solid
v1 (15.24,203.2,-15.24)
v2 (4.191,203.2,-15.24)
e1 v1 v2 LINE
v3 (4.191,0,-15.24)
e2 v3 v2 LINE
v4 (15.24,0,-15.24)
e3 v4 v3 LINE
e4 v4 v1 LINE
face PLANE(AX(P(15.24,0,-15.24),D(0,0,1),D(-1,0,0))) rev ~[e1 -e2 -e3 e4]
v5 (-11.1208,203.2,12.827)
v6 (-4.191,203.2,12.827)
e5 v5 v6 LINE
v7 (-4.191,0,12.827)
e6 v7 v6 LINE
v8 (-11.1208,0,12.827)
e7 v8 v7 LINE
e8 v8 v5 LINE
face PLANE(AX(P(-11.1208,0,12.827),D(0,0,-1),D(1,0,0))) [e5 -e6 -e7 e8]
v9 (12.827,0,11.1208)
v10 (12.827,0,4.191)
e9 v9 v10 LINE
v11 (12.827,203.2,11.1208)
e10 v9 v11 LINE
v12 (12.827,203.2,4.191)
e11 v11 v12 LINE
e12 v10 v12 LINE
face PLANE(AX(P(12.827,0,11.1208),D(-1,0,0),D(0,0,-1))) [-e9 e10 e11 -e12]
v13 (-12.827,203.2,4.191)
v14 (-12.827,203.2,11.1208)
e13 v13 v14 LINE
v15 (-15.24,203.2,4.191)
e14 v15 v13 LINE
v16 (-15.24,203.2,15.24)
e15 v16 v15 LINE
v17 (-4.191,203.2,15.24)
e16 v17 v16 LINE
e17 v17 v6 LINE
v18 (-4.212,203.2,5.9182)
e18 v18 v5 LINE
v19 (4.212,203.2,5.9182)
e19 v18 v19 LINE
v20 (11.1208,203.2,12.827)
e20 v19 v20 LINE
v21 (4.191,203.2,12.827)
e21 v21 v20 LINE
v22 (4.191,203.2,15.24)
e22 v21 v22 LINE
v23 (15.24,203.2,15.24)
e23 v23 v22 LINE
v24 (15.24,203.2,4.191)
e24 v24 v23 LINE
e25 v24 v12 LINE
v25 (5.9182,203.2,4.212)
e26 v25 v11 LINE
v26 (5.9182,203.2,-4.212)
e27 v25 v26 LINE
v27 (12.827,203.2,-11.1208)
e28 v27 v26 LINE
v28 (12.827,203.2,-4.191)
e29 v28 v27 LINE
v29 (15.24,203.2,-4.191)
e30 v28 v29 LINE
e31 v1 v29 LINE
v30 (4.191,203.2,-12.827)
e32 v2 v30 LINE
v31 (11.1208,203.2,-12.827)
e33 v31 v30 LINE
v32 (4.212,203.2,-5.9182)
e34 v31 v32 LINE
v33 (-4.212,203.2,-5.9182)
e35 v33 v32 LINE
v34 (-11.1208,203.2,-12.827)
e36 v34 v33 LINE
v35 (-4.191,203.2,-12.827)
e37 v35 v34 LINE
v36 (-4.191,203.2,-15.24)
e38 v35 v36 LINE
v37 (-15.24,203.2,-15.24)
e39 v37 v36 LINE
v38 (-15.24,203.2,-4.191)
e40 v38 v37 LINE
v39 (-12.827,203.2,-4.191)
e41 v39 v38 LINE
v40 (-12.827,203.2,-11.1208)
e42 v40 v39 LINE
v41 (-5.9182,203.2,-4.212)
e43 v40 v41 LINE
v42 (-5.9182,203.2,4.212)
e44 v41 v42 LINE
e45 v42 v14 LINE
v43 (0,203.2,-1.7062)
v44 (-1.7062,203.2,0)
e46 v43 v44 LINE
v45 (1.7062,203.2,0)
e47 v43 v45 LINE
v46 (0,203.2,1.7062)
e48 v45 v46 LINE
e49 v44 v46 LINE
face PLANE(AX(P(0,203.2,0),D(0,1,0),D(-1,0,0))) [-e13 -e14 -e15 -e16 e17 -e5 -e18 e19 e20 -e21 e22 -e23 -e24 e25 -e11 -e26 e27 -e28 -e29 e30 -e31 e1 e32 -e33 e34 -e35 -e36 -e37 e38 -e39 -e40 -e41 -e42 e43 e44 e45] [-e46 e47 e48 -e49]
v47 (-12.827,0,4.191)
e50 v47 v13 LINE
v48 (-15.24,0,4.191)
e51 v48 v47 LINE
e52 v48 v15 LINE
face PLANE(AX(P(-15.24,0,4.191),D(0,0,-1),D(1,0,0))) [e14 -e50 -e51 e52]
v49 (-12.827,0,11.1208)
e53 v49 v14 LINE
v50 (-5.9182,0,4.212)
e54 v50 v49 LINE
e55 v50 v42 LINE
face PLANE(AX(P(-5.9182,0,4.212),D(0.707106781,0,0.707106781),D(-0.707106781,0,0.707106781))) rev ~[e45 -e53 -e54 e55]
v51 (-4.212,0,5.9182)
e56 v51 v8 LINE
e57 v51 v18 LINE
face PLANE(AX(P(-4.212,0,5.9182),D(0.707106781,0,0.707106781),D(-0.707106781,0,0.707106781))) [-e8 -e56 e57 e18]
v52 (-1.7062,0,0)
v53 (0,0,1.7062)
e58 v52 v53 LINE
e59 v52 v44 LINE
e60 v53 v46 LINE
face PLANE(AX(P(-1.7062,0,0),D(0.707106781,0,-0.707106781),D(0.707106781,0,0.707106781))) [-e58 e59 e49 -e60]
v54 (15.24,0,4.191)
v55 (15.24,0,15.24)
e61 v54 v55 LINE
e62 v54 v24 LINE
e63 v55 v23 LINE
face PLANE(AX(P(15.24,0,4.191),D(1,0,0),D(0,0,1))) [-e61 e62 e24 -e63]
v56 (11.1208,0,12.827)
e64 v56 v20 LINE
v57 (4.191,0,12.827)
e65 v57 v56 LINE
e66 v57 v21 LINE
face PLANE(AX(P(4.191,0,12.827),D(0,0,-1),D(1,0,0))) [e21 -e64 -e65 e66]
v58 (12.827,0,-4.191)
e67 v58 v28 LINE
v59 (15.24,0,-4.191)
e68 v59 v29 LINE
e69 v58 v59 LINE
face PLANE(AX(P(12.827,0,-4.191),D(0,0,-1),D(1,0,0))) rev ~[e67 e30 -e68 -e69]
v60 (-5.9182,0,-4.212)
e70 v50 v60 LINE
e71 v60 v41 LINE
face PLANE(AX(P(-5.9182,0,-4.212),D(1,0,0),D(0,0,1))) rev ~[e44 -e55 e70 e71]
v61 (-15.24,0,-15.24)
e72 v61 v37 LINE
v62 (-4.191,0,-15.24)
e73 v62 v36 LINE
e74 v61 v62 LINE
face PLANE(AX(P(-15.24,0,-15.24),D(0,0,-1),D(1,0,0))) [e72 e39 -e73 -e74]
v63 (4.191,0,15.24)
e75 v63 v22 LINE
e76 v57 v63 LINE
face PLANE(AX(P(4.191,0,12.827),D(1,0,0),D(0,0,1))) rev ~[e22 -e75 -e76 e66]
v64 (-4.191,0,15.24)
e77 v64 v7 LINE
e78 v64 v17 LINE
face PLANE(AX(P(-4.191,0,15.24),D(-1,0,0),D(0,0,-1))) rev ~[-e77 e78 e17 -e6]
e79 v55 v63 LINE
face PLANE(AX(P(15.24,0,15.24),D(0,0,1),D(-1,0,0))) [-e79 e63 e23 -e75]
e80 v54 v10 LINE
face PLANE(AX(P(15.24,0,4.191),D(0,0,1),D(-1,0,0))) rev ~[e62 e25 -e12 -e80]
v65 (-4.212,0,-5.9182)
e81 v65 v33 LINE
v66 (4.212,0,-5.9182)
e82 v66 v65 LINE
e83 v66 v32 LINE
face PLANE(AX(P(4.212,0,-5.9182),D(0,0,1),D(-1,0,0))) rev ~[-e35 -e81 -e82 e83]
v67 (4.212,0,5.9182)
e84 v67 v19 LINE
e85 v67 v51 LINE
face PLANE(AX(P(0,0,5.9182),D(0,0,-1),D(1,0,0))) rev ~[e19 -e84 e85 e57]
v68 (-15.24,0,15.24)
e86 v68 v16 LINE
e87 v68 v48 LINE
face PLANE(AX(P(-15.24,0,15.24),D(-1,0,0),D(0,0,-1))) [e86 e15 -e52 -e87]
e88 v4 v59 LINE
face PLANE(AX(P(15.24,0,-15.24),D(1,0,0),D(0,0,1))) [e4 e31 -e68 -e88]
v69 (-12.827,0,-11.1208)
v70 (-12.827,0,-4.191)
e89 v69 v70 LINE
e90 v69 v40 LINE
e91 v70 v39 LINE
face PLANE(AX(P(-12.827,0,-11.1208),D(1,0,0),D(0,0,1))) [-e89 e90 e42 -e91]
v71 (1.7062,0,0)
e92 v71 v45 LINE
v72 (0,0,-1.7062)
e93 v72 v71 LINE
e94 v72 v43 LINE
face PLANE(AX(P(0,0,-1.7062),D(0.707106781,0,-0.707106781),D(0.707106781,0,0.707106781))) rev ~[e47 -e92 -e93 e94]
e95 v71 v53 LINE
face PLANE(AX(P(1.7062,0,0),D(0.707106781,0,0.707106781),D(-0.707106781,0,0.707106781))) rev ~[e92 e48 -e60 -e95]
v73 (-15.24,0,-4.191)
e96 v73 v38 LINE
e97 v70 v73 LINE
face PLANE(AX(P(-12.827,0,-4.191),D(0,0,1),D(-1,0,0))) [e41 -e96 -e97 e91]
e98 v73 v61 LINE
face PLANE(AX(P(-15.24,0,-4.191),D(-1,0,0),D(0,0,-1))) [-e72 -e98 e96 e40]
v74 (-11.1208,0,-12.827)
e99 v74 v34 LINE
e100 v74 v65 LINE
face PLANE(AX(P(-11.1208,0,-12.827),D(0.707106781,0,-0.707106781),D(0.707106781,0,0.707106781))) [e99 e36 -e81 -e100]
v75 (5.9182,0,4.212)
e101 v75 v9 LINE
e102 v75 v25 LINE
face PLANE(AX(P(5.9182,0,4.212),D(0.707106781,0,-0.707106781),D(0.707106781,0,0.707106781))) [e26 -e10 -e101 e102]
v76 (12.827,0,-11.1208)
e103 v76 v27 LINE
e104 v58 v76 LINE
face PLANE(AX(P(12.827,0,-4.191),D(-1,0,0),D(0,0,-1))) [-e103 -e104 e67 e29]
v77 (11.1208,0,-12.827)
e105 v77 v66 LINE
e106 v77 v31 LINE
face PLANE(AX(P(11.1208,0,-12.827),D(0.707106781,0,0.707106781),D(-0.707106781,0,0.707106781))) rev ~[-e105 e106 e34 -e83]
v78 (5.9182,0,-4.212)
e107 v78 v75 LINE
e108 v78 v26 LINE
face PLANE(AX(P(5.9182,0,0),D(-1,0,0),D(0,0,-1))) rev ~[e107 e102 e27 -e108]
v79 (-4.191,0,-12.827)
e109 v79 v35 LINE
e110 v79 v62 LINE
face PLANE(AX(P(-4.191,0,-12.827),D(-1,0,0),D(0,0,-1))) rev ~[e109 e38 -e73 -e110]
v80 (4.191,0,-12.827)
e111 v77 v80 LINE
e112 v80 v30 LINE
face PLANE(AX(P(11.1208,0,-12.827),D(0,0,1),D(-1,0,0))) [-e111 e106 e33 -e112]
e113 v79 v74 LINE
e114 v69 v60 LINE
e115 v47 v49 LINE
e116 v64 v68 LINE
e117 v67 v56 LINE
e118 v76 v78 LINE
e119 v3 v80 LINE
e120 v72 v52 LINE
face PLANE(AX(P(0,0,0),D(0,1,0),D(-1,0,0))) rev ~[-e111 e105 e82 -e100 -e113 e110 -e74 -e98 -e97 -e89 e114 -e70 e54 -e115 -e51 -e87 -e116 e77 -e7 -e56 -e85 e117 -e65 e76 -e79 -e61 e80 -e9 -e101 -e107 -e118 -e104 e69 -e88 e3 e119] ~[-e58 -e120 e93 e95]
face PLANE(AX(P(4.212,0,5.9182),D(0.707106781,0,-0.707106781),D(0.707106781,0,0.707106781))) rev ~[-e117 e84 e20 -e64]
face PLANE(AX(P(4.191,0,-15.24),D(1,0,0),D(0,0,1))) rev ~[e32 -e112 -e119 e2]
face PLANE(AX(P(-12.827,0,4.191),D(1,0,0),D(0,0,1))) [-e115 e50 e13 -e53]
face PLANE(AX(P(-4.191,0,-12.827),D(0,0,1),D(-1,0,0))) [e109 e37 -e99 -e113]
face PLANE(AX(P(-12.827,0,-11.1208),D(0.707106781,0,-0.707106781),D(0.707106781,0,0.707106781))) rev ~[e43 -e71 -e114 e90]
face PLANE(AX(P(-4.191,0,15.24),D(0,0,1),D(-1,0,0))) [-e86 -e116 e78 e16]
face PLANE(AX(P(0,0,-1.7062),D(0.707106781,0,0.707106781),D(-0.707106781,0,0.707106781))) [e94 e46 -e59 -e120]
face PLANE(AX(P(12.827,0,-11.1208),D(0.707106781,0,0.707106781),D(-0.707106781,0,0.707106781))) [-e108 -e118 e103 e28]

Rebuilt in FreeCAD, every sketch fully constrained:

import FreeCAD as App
import Part
import Sketcher
Q = App.Units.Quantity

doc = App.newDocument("Part")
body = doc.addObject("PartDesign::Body", "Body")

sketch1 = body.newObject("Sketcher::SketchObject", "Sketch")
sketch1.AttachmentSupport = (doc.getObject("XZ_Plane"), [""])
sketch1.MapMode = "FlatFace"
sketch1.addGeometry([
    Part.LineSegment(App.Vector(4.2, -5.9, 0), App.Vector(-4.2, -5.9, 0)),
    Part.LineSegment(App.Vector(-4.2, -5.9, 0), App.Vector(-11.1, -12.8, 0)),
    Part.LineSegment(App.Vector(-11.1, -12.8, 0), App.Vector(-4.2, -12.8, 0)),
    Part.LineSegment(App.Vector(-4.2, -12.8, 0), App.Vector(-4.2, -15.2, 0)),
    Part.LineSegment(App.Vector(-4.2, -15.2, 0), App.Vector(-15.2, -15.2, 0)),
    Part.LineSegment(App.Vector(-15.2, -15.2, 0), App.Vector(-15.2, -4.2, 0)),
    Part.LineSegment(App.Vector(-15.2, -4.2, 0), App.Vector(-12.8, -4.2, 0)),
    Part.LineSegment(App.Vector(-12.8, -4.2, 0), App.Vector(-12.8, -11.1, 0)),
    Part.LineSegment(App.Vector(-12.8, -11.1, 0), App.Vector(-5.9, -4.2, 0)),
    Part.LineSegment(App.Vector(-5.9, -4.2, 0), App.Vector(-5.9, 4.2, 0)),
    Part.LineSegment(App.Vector(-5.9, 4.2, 0), App.Vector(-12.8, 11.1, 0)),
    Part.LineSegment(App.Vector(-12.8, 11.1, 0), App.Vector(-12.8, 4.2, 0)),
    Part.LineSegment(App.Vector(-12.8, 4.2, 0), App.Vector(-15.2, 4.2, 0)),
    Part.LineSegment(App.Vector(-15.2, 4.2, 0), App.Vector(-15.2, 15.2, 0)),
    Part.LineSegment(App.Vector(-15.2, 15.2, 0), App.Vector(-4.2, 15.2, 0)),
    Part.LineSegment(App.Vector(-4.2, 15.2, 0), App.Vector(-4.2, 12.8, 0)),
    Part.LineSegment(App.Vector(-4.2, 12.8, 0), App.Vector(-11.1, 12.8, 0)),
    Part.LineSegment(App.Vector(-11.1, 12.8, 0), App.Vector(-4.2, 5.9, 0)),
    Part.LineSegment(App.Vector(-4.2, 5.9, 0), App.Vector(4.2, 5.9, 0)),
    Part.LineSegment(App.Vector(4.2, 5.9, 0), App.Vector(11.1, 12.8, 0)),
    Part.LineSegment(App.Vector(11.1, 12.8, 0), App.Vector(4.2, 12.8, 0)),
    Part.LineSegment(App.Vector(4.2, 12.8, 0), App.Vector(4.2, 15.2, 0)),
    Part.LineSegment(App.Vector(4.2, 15.2, 0), App.Vector(15.2, 15.2, 0)),
    Part.LineSegment(App.Vector(15.2, 15.2, 0), App.Vector(15.2, 4.2, 0)),
    Part.LineSegment(App.Vector(15.2, 4.2, 0), App.Vector(12.8, 4.2, 0)),
    Part.LineSegment(App.Vector(12.8, 4.2, 0), App.Vector(12.8, 11.1, 0)),
    Part.LineSegment(App.Vector(12.8, 11.1, 0), App.Vector(5.9, 4.2, 0)),
    Part.LineSegment(App.Vector(5.9, 4.2, 0), App.Vector(5.9, -4.2, 0)),
    Part.LineSegment(App.Vector(5.9, -4.2, 0), App.Vector(12.8, -11.1, 0)),
    Part.LineSegment(App.Vector(12.8, -11.1, 0), App.Vector(12.8, -4.2, 0)),
    Part.LineSegment(App.Vector(12.8, -4.2, 0), App.Vector(15.2, -4.2, 0)),
    Part.LineSegment(App.Vector(15.2, -4.2, 0), App.Vector(15.2, -15.2, 0)),
    Part.LineSegment(App.Vector(15.2, -15.2, 0), App.Vector(4.2, -15.2, 0)),
    Part.LineSegment(App.Vector(4.2, -15.2, 0), App.Vector(4.2, -12.8, 0)),
    Part.LineSegment(App.Vector(4.2, -12.8, 0), App.Vector(11.1, -12.8, 0)),
    Part.LineSegment(App.Vector(11.1, -12.8, 0), App.Vector(4.2, -5.9, 0)),
    Part.LineSegment(App.Vector(0, -1.7, 0), App.Vector(1.7, 0, 0)),
    Part.LineSegment(App.Vector(1.7, 0, 0), App.Vector(0, 1.7, 0)),
    Part.LineSegment(App.Vector(0, 1.7, 0), App.Vector(-1.7, 0, 0)),
    Part.LineSegment(App.Vector(-1.7, 0, 0), App.Vector(0, -1.7, 0)),
], False)
sketch1.addConstraint([
    Sketcher.Constraint("Coincident", 0, 2, 1, 1),
    Sketcher.Constraint("Coincident", 1, 2, 2, 1),
    Sketcher.Constraint("Coincident", 2, 2, 3, 1),
    Sketcher.Constraint("Coincident", 3, 2, 4, 1),
    Sketcher.Constraint("Coincident", 4, 2, 5, 1),
    Sketcher.Constraint("Coincident", 5, 2, 6, 1),
    Sketcher.Constraint("Coincident", 6, 2, 7, 1),
    Sketcher.Constraint("Coincident", 7, 2, 8, 1),
    Sketcher.Constraint("Coincident", 8, 2, 9, 1),
    Sketcher.Constraint("Coincident", 9, 2, 10, 1),
    Sketcher.Constraint("Coincident", 10, 2, 11, 1),
    Sketcher.Constraint("Coincident", 11, 2, 12, 1),
    Sketcher.Constraint("Coincident", 12, 2, 13, 1),
    Sketcher.Constraint("Coincident", 13, 2, 14, 1),
    Sketcher.Constraint("Coincident", 14, 2, 15, 1),
    Sketcher.Constraint("Coincident", 15, 2, 16, 1),
    Sketcher.Constraint("Coincident", 16, 2, 17, 1),
    Sketcher.Constraint("Coincident", 17, 2, 18, 1),
    Sketcher.Constraint("Coincident", 18, 2, 19, 1),
    Sketcher.Constraint("Coincident", 19, 2, 20, 1),
    Sketcher.Constraint("Coincident", 20, 2, 21, 1),
    Sketcher.Constraint("Coincident", 21, 2, 22, 1),
    Sketcher.Constraint("Coincident", 22, 2, 23, 1),
    Sketcher.Constraint("Coincident", 23, 2, 24, 1),
    Sketcher.Constraint("Coincident", 24, 2, 25, 1),
    Sketcher.Constraint("Coincident", 25, 2, 26, 1),
    Sketcher.Constraint("Coincident", 26, 2, 27, 1),
    Sketcher.Constraint("Coincident", 27, 2, 28, 1),
    Sketcher.Constraint("Coincident", 28, 2, 29, 1),
    Sketcher.Constraint("Coincident", 29, 2, 30, 1),
    Sketcher.Constraint("Coincident", 30, 2, 31, 1),
    Sketcher.Constraint("Coincident", 31, 2, 32, 1),
    Sketcher.Constraint("Coincident", 32, 2, 33, 1),
    Sketcher.Constraint("Coincident", 33, 2, 34, 1),
    Sketcher.Constraint("Coincident", 34, 2, 35, 1),
    Sketcher.Constraint("Coincident", 35, 2, 0, 1),
    Sketcher.Constraint("Coincident", 36, 2, 37, 1),
    Sketcher.Constraint("Coincident", 37, 2, 38, 1),
    Sketcher.Constraint("Coincident", 38, 2, 39, 1),
    Sketcher.Constraint("Coincident", 39, 2, 36, 1),
    Sketcher.Constraint("Horizontal", 0),
    Sketcher.Constraint("Horizontal", 2),
    Sketcher.Constraint("Vertical", 3),
    Sketcher.Constraint("Horizontal", 4),
    Sketcher.Constraint("Vertical", 5),
    Sketcher.Constraint("Horizontal", 6),
    Sketcher.Constraint("Vertical", 7),
    Sketcher.Constraint("Vertical", 9),
    Sketcher.Constraint("Vertical", 11),
    Sketcher.Constraint("Horizontal", 12),
    Sketcher.Constraint("Vertical", 13),
    Sketcher.Constraint("Horizontal", 14),
    Sketcher.Constraint("Vertical", 15),
    Sketcher.Constraint("Horizontal", 16),
    Sketcher.Constraint("Horizontal", 18),
    Sketcher.Constraint("Horizontal", 20),
    Sketcher.Constraint("Vertical", 21),
    Sketcher.Constraint("Horizontal", 22),
    Sketcher.Constraint("Vertical", 23),
    Sketcher.Constraint("Horizontal", 24),
    Sketcher.Constraint("Vertical", 25),
    Sketcher.Constraint("Vertical", 27),
    Sketcher.Constraint("Vertical", 29),
    Sketcher.Constraint("Horizontal", 30),
    Sketcher.Constraint("Vertical", 31),
    Sketcher.Constraint("Horizontal", 32),
    Sketcher.Constraint("Vertical", 33),
    Sketcher.Constraint("Horizontal", 34),
    Sketcher.Constraint("Symmetric", 0, 2, 18, 2, -1, 1),
    Sketcher.Constraint("Symmetric", 1, 2, 19, 2, -1, 1),
    Sketcher.Constraint("Symmetric", 3, 2, 21, 2, -1, 1),
    Sketcher.Constraint("Symmetric", 5, 2, 23, 2, -1, 1),
    Sketcher.Constraint("Symmetric", 7, 2, 25, 2, -1, 1),
    Sketcher.Constraint("Symmetric", 8, 2, 26, 2, -1, 1),
    Sketcher.Constraint("Symmetric", 10, 2, 28, 2, -1, 1),
    Sketcher.Constraint("Symmetric", 12, 2, 30, 2, -1, 1),
    Sketcher.Constraint("Symmetric", 14, 2, 32, 2, -1, 1),
    Sketcher.Constraint("Symmetric", 16, 2, 34, 2, -1, 1),
    Sketcher.Constraint("Symmetric", 36, 2, 38, 2, -1, 1),
    Sketcher.Constraint("Symmetric", 37, 2, 39, 2, -1, 1),
    Sketcher.Constraint("Symmetric", 16, 2, 19, 2, -2),
    Sketcher.Constraint("Symmetric", 14, 2, 21, 2, -2),
    Sketcher.Constraint("Symmetric", 12, 2, 23, 2, -2),
    Sketcher.Constraint("Symmetric", 10, 2, 25, 2, -2),
    Sketcher.Constraint("PointOnObject", 36, 2, -1),
    Sketcher.Constraint("PointOnObject", 37, 2, -2),
    Sketcher.Constraint("Parallel", 1, 8),
    Sketcher.Constraint("Perpendicular", 8, 10),
    Sketcher.Constraint("Parallel", 10, 17),
    Sketcher.Constraint("Perpendicular", 26, 28),
    Sketcher.Constraint("Parallel", 28, 35),
    Sketcher.Constraint("Perpendicular", 35, 36),
    Sketcher.Constraint("Perpendicular", 36, 37),
    Sketcher.Constraint("Equal", 30, 3),
    Sketcher.Constraint("Equal", 32, 5),
    Sketcher.Constraint("Equal", 34, 7),
    Sketcher.Constraint("Equal", 18, 9),
    Sketcher.Constraint("Equal", 1, 8),
    Sketcher.Constraint("DistanceX", 4, 2, 4, 1, Q("0.435 in")),
    Sketcher.Constraint("DistanceX", 8, 2, 27, 2, Q("0.466 in")),
    Sketcher.Constraint("DistanceY", 3, 2, -1, 1, Q("0.6 in")),
    Sketcher.Constraint("DistanceX", 6, 1, 6, 2, Q("0.095 in")),
    Sketcher.Constraint("Distance", 36, Q("0.095 in")),
    Sketcher.Constraint("DistanceX", 0, 2, 36, 2, Q("0.233 in")),
])
pad1 = body.newObject("PartDesign::Pad", "Pad")
pad1.Profile = sketch1
pad1.Length = Q("8 in")
pad1.Reversed = True

doc.recompute()
